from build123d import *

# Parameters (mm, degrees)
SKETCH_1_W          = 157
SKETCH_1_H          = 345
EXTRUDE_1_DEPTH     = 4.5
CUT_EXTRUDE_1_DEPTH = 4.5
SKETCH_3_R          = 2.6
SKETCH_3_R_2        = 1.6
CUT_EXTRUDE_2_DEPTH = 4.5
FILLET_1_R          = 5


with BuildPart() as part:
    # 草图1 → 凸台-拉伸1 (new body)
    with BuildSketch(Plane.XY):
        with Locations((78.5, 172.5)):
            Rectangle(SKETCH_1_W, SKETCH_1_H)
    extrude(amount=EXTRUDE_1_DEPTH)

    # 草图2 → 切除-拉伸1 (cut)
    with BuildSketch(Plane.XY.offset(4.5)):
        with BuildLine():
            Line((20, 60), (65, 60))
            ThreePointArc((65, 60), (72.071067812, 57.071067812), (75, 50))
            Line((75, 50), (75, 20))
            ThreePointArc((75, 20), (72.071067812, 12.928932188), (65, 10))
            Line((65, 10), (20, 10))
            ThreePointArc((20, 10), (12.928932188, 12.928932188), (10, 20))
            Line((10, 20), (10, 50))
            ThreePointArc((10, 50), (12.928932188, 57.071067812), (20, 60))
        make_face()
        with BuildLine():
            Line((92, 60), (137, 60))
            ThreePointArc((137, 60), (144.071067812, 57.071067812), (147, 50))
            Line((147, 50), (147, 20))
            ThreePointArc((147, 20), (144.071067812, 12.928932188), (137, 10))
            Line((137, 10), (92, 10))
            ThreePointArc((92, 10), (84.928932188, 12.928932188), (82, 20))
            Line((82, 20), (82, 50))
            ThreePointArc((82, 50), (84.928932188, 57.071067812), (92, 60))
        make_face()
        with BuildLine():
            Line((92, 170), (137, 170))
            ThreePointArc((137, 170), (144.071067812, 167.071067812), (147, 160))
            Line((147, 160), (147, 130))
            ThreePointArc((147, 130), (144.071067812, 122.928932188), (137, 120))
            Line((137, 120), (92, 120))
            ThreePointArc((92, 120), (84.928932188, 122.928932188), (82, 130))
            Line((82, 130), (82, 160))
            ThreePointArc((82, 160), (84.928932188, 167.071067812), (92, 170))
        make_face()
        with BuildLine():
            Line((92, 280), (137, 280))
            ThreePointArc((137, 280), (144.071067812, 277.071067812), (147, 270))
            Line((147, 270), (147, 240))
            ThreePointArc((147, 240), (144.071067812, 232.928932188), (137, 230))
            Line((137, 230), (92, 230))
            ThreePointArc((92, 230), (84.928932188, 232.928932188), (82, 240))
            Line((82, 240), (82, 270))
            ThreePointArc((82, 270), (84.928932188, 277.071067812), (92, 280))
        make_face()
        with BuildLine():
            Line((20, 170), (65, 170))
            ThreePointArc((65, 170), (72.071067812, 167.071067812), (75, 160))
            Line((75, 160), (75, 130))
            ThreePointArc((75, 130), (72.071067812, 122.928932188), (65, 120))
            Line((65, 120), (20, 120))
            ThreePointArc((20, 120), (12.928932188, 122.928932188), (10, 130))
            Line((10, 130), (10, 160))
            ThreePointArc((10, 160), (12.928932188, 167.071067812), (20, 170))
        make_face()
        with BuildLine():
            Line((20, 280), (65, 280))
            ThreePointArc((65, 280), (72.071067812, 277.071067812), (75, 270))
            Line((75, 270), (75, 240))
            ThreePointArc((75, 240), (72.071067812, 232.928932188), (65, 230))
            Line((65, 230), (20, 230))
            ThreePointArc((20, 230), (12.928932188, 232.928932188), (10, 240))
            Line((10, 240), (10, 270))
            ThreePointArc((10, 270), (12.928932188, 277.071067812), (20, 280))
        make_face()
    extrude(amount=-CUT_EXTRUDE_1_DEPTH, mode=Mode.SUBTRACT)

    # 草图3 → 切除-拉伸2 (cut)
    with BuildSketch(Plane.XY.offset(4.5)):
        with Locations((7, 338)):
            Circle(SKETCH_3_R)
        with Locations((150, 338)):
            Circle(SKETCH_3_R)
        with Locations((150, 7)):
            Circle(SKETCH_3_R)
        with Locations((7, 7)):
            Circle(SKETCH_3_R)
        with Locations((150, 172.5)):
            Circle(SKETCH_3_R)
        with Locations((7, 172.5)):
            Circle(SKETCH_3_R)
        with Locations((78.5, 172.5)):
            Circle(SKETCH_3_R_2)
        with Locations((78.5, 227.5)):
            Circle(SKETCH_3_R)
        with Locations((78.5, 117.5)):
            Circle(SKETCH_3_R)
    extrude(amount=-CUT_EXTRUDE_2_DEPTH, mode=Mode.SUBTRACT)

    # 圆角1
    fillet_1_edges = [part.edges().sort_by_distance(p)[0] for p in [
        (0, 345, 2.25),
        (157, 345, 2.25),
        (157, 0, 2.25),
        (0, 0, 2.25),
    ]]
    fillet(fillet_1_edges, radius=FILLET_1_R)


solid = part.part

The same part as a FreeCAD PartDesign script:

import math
import FreeCAD as App
import Part
import Sketcher

V = App.Vector
Q = App.Units.Quantity


def edges_at(feature, points):
    """Names of the edges that pass closest to the given points."""
    edges = feature.Shape.Edges
    near = lambda p: min(range(len(edges)), key=lambda i: edges[i].distToShape(Part.Vertex(*p))[0])
    return sorted({f"Edge{near(p) + 1}" for p in points})


def add_polygon(sketch, points):
    """Adds a closed chain of lines whose ends are joined by coincident constraints."""
    first, n = sketch.GeometryCount, len(points)
    for a, b in zip(points, points[1:] + points[:1]):
        sketch.addGeometry(Part.LineSegment(App.Vector(*a, 0), App.Vector(*b, 0)), False)
    for i in range(n):
        sketch.addConstraint(Sketcher.Constraint("Coincident", first + i, 2, first + (i + 1) % n, 1))

doc = App.newDocument("Part")
body = doc.addObject("PartDesign::Body", "Body")

sketch1 = body.newObject("Sketcher::SketchObject", "Sketch")
sketch1.AttachmentSupport = (doc.getObject("XY_Plane"), [""])
sketch1.MapMode = "FlatFace"
add_polygon(sketch1, [(0, 345), (0, 0), (157, 0), (157, 345)])
sketch1.addConstraint([
    Sketcher.Constraint("Vertical", 0),
    Sketcher.Constraint("Horizontal", 1),
    Sketcher.Constraint("Vertical", 2),
    Sketcher.Constraint("Horizontal", 3),
    Sketcher.Constraint("Coincident", 0, 2, -1, 1),
    Sketcher.Constraint("DistanceX", 1, 1, 1, 2, Q("157 mm")),
    Sketcher.Constraint("DistanceY", 0, 2, 0, 1, Q("345 mm")),
])
pad1 = body.newObject("PartDesign::Pad", "Pad")
pad1.Profile = sketch1
pad1.Length = 4.5

sketch2 = body.newObject("Sketcher::SketchObject", "Sketch001")
sketch2.AttachmentSupport = (doc.getObject("XY_Plane"), [""])
sketch2.MapMode = "FlatFace"
sketch2.AttachmentOffset = App.Placement(V(0, 0, 4.5), App.Rotation())
sketch2.addGeometry([
    Part.LineSegment(V(65, 60, 0), V(20, 60, 0)),
    Part.ArcOfCircle(Part.Circle(V(20, 50, 0), V(0, 0, 1), 10), math.radians(90), math.radians(180)),
    Part.LineSegment(V(10, 50, 0), V(10, 20, 0)),
    Part.ArcOfCircle(Part.Circle(V(20, 20, 0), V(0, 0, 1), 10), math.radians(180), math.radians(270)),
    Part.LineSegment(V(20, 10, 0), V(65, 10, 0)),
    Part.ArcOfCircle(Part.Circle(V(65, 20, 0), V(0, 0, 1), 10), math.radians(-90), math.radians(0)),
    Part.LineSegment(V(75, 20, 0), V(75, 50, 0)),
    Part.ArcOfCircle(Part.Circle(V(65, 50, 0), V(0, 0, 1), 10), math.radians(0), math.radians(90)),
    Part.LineSegment(V(137, 60, 0), V(92, 60, 0)),
    Part.ArcOfCircle(Part.Circle(V(92, 50, 0), V(0, 0, 1), 10), math.radians(90), math.radians(180)),
    Part.LineSegment(V(82, 50, 0), V(82, 20, 0)),
    Part.ArcOfCircle(Part.Circle(V(92, 20, 0), V(0, 0, 1), 10), math.radians(180), math.radians(270)),
    Part.LineSegment(V(92, 10, 0), V(137, 10, 0)),
    Part.ArcOfCircle(Part.Circle(V(137, 20, 0), V(0, 0, 1), 10), math.radians(-90), math.radians(0)),
    Part.LineSegment(V(147, 20, 0), V(147, 50, 0)),
    Part.ArcOfCircle(Part.Circle(V(137, 50, 0), V(0, 0, 1), 10), math.radians(0), math.radians(90)),
    Part.LineSegment(V(137, 170, 0), V(92, 170, 0)),
    Part.ArcOfCircle(Part.Circle(V(92, 160, 0), V(0, 0, 1), 10), math.radians(90), math.radians(180)),
    Part.LineSegment(V(82, 160, 0), V(82, 130, 0)),
    Part.ArcOfCircle(Part.Circle(V(92, 130, 0), V(0, 0, 1), 10), math.radians(180), math.radians(270)),
    Part.LineSegment(V(92, 120, 0), V(137, 120, 0)),
    Part.ArcOfCircle(Part.Circle(V(137, 130, 0), V(0, 0, 1), 10), math.radians(-90), math.radians(0)),
    Part.LineSegment(V(147, 130, 0), V(147, 160, 0)),
    Part.ArcOfCircle(Part.Circle(V(137, 160, 0), V(0, 0, 1), 10), math.radians(0), math.radians(90)),
    Part.LineSegment(V(137, 280, 0), V(92, 280, 0)),
    Part.ArcOfCircle(Part.Circle(V(92, 270, 0), V(0, 0, 1), 10), math.radians(90), math.radians(180)),
    Part.LineSegment(V(82, 270, 0), V(82, 240, 0)),
    Part.ArcOfCircle(Part.Circle(V(92, 240, 0), V(0, 0, 1), 10), math.radians(180), math.radians(270)),
    Part.LineSegment(V(92, 230, 0), V(137, 230, 0)),
    Part.ArcOfCircle(Part.Circle(V(137, 240, 0), V(0, 0, 1), 10), math.radians(-90), math.radians(0)),
    Part.LineSegment(V(147, 240, 0), V(147, 270, 0)),
    Part.ArcOfCircle(Part.Circle(V(137, 270, 0), V(0, 0, 1), 10), math.radians(0), math.radians(90)),
    Part.LineSegment(V(65, 170, 0), V(20, 170, 0)),
    Part.ArcOfCircle(Part.Circle(V(20, 160, 0), V(0, 0, 1), 10), math.radians(90), math.radians(180)),
    Part.LineSegment(V(10, 160, 0), V(10, 130, 0)),
    Part.ArcOfCircle(Part.Circle(V(20, 130, 0), V(0, 0, 1), 10), math.radians(180), math.radians(270)),
    Part.LineSegment(V(20, 120, 0), V(65, 120, 0)),
    Part.ArcOfCircle(Part.Circle(V(65, 130, 0), V(0, 0, 1), 10), math.radians(-90), math.radians(0)),
    Part.LineSegment(V(75, 130, 0), V(75, 160, 0)),
    Part.ArcOfCircle(Part.Circle(V(65, 160, 0), V(0, 0, 1), 10), math.radians(0), math.radians(90)),
    Part.LineSegment(V(65, 280, 0), V(20, 280, 0)),
    Part.ArcOfCircle(Part.Circle(V(20, 270, 0), V(0, 0, 1), 10), math.radians(90), math.radians(180)),
    Part.LineSegment(V(10, 270, 0), V(10, 240, 0)),
    Part.ArcOfCircle(Part.Circle(V(20, 240, 0), V(0, 0, 1), 10), math.radians(180), math.radians(270)),
    Part.LineSegment(V(20, 230, 0), V(65, 230, 0)),
    Part.ArcOfCircle(Part.Circle(V(65, 240, 0), V(0, 0, 1), 10), math.radians(-90), math.radians(0)),
    Part.LineSegment(V(75, 240, 0), V(75, 270, 0)),
    Part.ArcOfCircle(Part.Circle(V(65, 270, 0), V(0, 0, 1), 10), math.radians(0), math.radians(90)),
], False)
sketch2.addConstraint([
    Sketcher.Constraint("Tangent", 0, 2, 1, 1),
    Sketcher.Constraint("Tangent", 1, 2, 2, 1),
    Sketcher.Constraint("Tangent", 2, 2, 3, 1),
    Sketcher.Constraint("Tangent", 3, 2, 4, 1),
    Sketcher.Constraint("Tangent", 4, 2, 5, 1),
    Sketcher.Constraint("Tangent", 5, 2, 6, 1),
    Sketcher.Constraint("Tangent", 6, 2, 7, 1),
    Sketcher.Constraint("Tangent", 7, 2, 0, 1),
    Sketcher.Constraint("Tangent", 8, 2, 9, 1),
    Sketcher.Constraint("Tangent", 9, 2, 10, 1),
    Sketcher.Constraint("Tangent", 10, 2, 11, 1),
    Sketcher.Constraint("Tangent", 11, 2, 12, 1),
    Sketcher.Constraint("Tangent", 12, 2, 13, 1),
    Sketcher.Constraint("Tangent", 13, 2, 14, 1),
    Sketcher.Constraint("Tangent", 14, 2, 15, 1),
    Sketcher.Constraint("Tangent", 15, 2, 8, 1),
    Sketcher.Constraint("Tangent", 16, 2, 17, 1),
    Sketcher.Constraint("Tangent", 17, 2, 18, 1),
    Sketcher.Constraint("Tangent", 18, 2, 19, 1),
    Sketcher.Constraint("Tangent", 19, 2, 20, 1),
    Sketcher.Constraint("Tangent", 20, 2, 21, 1),
    Sketcher.Constraint("Tangent", 21, 2, 22, 1),
    Sketcher.Constraint("Tangent", 22, 2, 23, 1),
    Sketcher.Constraint("Tangent", 23, 2, 16, 1),
    Sketcher.Constraint("Tangent", 24, 2, 25, 1),
    Sketcher.Constraint("Tangent", 25, 2, 26, 1),
    Sketcher.Constraint("Tangent", 26, 2, 27, 1),
    Sketcher.Constraint("Tangent", 27, 2, 28, 1),
    Sketcher.Constraint("Tangent", 28, 2, 29, 1),
    Sketcher.Constraint("Tangent", 29, 2, 30, 1),
    Sketcher.Constraint("Tangent", 30, 2, 31, 1),
    Sketcher.Constraint("Tangent", 31, 2, 24, 1),
    Sketcher.Constraint("Tangent", 32, 2, 33, 1),
    Sketcher.Constraint("Tangent", 33, 2, 34, 1),
    Sketcher.Constraint("Tangent", 34, 2, 35, 1),
    Sketcher.Constraint("Tangent", 35, 2, 36, 1),
    Sketcher.Constraint("Tangent", 36, 2, 37, 1),
    Sketcher.Constraint("Tangent", 37, 2, 38, 1),
    Sketcher.Constraint("Tangent", 38, 2, 39, 1),
    Sketcher.Constraint("Tangent", 39, 2, 32, 1),
    Sketcher.Constraint("Tangent", 40, 2, 41, 1),
    Sketcher.Constraint("Tangent", 41, 2, 42, 1),
    Sketcher.Constraint("Tangent", 42, 2, 43, 1),
    Sketcher.Constraint("Tangent", 43, 2, 44, 1),
    Sketcher.Constraint("Tangent", 44, 2, 45, 1),
    Sketcher.Constraint("Tangent", 45, 2, 46, 1),
    Sketcher.Constraint("Tangent", 46, 2, 47, 1),
    Sketcher.Constraint("Tangent", 47, 2, 40, 1),
    Sketcher.Constraint("Horizontal", 0),
    Sketcher.Constraint("Vertical", 2),
    Sketcher.Constraint("Horizontal", 4),
    Sketcher.Constraint("Vertical", 6),
    Sketcher.Constraint("Horizontal", 8),
    Sketcher.Constraint("Vertical", 10),
    Sketcher.Constraint("Horizontal", 12),
    Sketcher.Constraint("Vertical", 14),
    Sketcher.Constraint("Horizontal", 16),
    Sketcher.Constraint("Vertical", 18),
    Sketcher.Constraint("Horizontal", 20),
    Sketcher.Constraint("Vertical", 22),
    Sketcher.Constraint("Horizontal", 24),
    Sketcher.Constraint("Vertical", 26),
    Sketcher.Constraint("Horizontal", 28),
    Sketcher.Constraint("Vertical", 30),
    Sketcher.Constraint("Horizontal", 32),
    Sketcher.Constraint("Vertical", 34),
    Sketcher.Constraint("Horizontal", 36),
    Sketcher.Constraint("Vertical", 38),
    Sketcher.Constraint("Horizontal", 40),
    Sketcher.Constraint("Vertical", 42),
    Sketcher.Constraint("Horizontal", 44),
    Sketcher.Constraint("Vertical", 46),
    Sketcher.Constraint("Equal", 1, 3),
    Sketcher.Constraint("Equal", 3, 5),
    Sketcher.Constraint("Equal", 5, 7),
    Sketcher.Constraint("Equal", 7, 9),
    Sketcher.Constraint("Equal", 9, 11),
    Sketcher.Constraint("Equal", 11, 13),
    Sketcher.Constraint("Equal", 13, 15),
    Sketcher.Constraint("Equal", 15, 17),
    Sketcher.Constraint("Equal", 17, 19),
    Sketcher.Constraint("Equal", 19, 21),
    Sketcher.Constraint("Equal", 21, 23),
    Sketcher.Constraint("Equal", 23, 25),
    Sketcher.Constraint("Equal", 25, 27),
    Sketcher.Constraint("Equal", 27, 29),
    Sketcher.Constraint("Equal", 29, 31),
    Sketcher.Constraint("Equal", 31, 33),
    Sketcher.Constraint("Equal", 33, 35),
    Sketcher.Constraint("Equal", 35, 37),
    Sketcher.Constraint("Equal", 37, 39),
    Sketcher.Constraint("Equal", 39, 41),
    Sketcher.Constraint("Equal", 41, 43),
    Sketcher.Constraint("Equal", 43, 45),
    Sketcher.Constraint("Equal", 45, 47),
    Sketcher.Constraint("Horizontal", 7, 3, 9, 3),
    Sketcher.Constraint("Horizontal", 5, 3, 11, 3),
    Sketcher.Constraint("Horizontal", 23, 3, 33, 3),
    Sketcher.Constraint("Horizontal", 21, 3, 35, 3),
    Sketcher.Constraint("Horizontal", 31, 3, 41, 3),
    Sketcher.Constraint("Horizontal", 29, 3, 43, 3),
    Sketcher.Constraint("Vertical", 11, 3, 17, 3),
    Sketcher.Constraint("Vertical", 15, 3, 21, 3),
    Sketcher.Constraint("Vertical", 19, 3, 25, 3),
    Sketcher.Constraint("Vertical", 23, 3, 29, 3),
    Sketcher.Constraint("Vertical", 3, 3, 33, 3),
    Sketcher.Constraint("Vertical", 7, 3, 37, 3),
    Sketcher.Constraint("Vertical", 35, 3, 41, 3),
    Sketcher.Constraint("Vertical", 39, 3, 45, 3),
    Sketcher.Constraint("Equal", 4, 8),
    Sketcher.Constraint("Equal", 14, 18),
    Sketcher.Constraint("Equal", 22, 26),
    Sketcher.Constraint("Radius", 1, Q("10 mm")),
    Sketcher.Constraint("DistanceX", 0, 2, 0, 1, Q("45 mm")),
    Sketcher.Constraint("DistanceY", 2, 2, 2, 1, Q("30 mm")),
    Sketcher.Constraint("DistanceX", -1, 1, 1, 3, Q("20 mm")),
    Sketcher.Constraint("DistanceY", -1, 1, 1, 3, Q("50 mm")),
    Sketcher.Constraint("DistanceX", -1, 1, 9, 3, Q("92 mm")),
    Sketcher.Constraint("DistanceY", -1, 1, 17, 3, Q("160 mm")),
    Sketcher.Constraint("DistanceY", -1, 1, 25, 3, Q("270 mm")),
])
pocket1 = body.newObject("PartDesign::Pocket", "Pocket")
pocket1.Profile = sketch2
pocket1.Length = 4.5

sketch3 = body.newObject("Sketcher::SketchObject", "Sketch002")
sketch3.AttachmentSupport = (doc.getObject("XY_Plane"), [""])
sketch3.MapMode = "FlatFace"
sketch3.AttachmentOffset = App.Placement(V(0, 0, 4.5), App.Rotation())
sketch3.addGeometry([
    Part.Circle(V(7, 338, 0), V(0, 0, 1), 2.6),
    Part.Circle(V(150, 338, 0), V(0, 0, 1), 2.6),
    Part.Circle(V(150, 7, 0), V(0, 0, 1), 2.6),
    Part.Circle(V(7, 7, 0), V(0, 0, 1), 2.6),
    Part.Circle(V(150, 172.5, 0), V(0, 0, 1), 2.6),
    Part.Circle(V(7, 172.5, 0), V(0, 0, 1), 2.6),
    Part.Circle(V(78.5, 172.5, 0), V(0, 0, 1), 1.6),
    Part.Circle(V(78.5, 227.5, 0), V(0, 0, 1), 2.6),
    Part.Circle(V(78.5, 117.5, 0), V(0, 0, 1), 2.6),
], False)
sketch3.addConstraint([
    Sketcher.Constraint("Equal", 0, 1),
    Sketcher.Constraint("Equal", 1, 2),
    Sketcher.Constraint("Equal", 2, 3),
    Sketcher.Constraint("Equal", 3, 4),
    Sketcher.Constraint("Equal", 4, 5),
    Sketcher.Constraint("Equal", 5, 7),
    Sketcher.Constraint("Equal", 7, 8),
    Sketcher.Constraint("Horizontal", 0, 3, 1, 3),
    Sketcher.Constraint("Horizontal", 2, 3, 3, 3),
    Sketcher.Constraint("Horizontal", 4, 3, 5, 3),
    Sketcher.Constraint("Horizontal", 5, 3, 6, 3),
    Sketcher.Constraint("Vertical", 1, 3, 2, 3),
    Sketcher.Constraint("Vertical", 0, 3, 3, 3),
    Sketcher.Constraint("Vertical", 2, 3, 4, 3),
    Sketcher.Constraint("Vertical", 3, 3, 5, 3),
    Sketcher.Constraint("Vertical", 6, 3, 7, 3),
    Sketcher.Constraint("Vertical", 7, 3, 8, 3),
    Sketcher.Constraint("Diameter", 0, Q("5.2 mm")),
    Sketcher.Constraint("Diameter", 6, Q("3.2 mm")),
    Sketcher.Constraint("DistanceX", -1, 1, 0, 3, Q("7 mm")),
    Sketcher.Constraint("DistanceY", -1, 1, 0, 3, Q("338 mm")),
    Sketcher.Constraint("DistanceX", -1, 1, 1, 3, Q("150 mm")),
    Sketcher.Constraint("DistanceY", -1, 1, 2, 3, Q("7 mm")),
    Sketcher.Constraint("DistanceY", 6, 3, 7, 3, Q("55 mm")),
    Sketcher.Constraint("DistanceY", 8, 3, 6, 3, Q("55 mm")),
    Sketcher.Constraint("DistanceY", -1, 1, 4, 3, Q("172.5 mm")),
    Sketcher.Constraint("DistanceX", -1, 1, 6, 3, Q("78.5 mm")),
])
pocket2 = body.newObject("PartDesign::Pocket", "Pocket001")
pocket2.Profile = sketch3
pocket2.Length = 4.5
doc.recompute()

fillet = body.newObject("PartDesign::Fillet", "Fillet")
fillet.Base = (pocket2, edges_at(pocket2, [
    (0, 345, 2.25),
    (157, 345, 2.25),
    (157, 0, 2.25),
    (0, 0, 2.25),
]))
fillet.Radius = 5

doc.recompute()
